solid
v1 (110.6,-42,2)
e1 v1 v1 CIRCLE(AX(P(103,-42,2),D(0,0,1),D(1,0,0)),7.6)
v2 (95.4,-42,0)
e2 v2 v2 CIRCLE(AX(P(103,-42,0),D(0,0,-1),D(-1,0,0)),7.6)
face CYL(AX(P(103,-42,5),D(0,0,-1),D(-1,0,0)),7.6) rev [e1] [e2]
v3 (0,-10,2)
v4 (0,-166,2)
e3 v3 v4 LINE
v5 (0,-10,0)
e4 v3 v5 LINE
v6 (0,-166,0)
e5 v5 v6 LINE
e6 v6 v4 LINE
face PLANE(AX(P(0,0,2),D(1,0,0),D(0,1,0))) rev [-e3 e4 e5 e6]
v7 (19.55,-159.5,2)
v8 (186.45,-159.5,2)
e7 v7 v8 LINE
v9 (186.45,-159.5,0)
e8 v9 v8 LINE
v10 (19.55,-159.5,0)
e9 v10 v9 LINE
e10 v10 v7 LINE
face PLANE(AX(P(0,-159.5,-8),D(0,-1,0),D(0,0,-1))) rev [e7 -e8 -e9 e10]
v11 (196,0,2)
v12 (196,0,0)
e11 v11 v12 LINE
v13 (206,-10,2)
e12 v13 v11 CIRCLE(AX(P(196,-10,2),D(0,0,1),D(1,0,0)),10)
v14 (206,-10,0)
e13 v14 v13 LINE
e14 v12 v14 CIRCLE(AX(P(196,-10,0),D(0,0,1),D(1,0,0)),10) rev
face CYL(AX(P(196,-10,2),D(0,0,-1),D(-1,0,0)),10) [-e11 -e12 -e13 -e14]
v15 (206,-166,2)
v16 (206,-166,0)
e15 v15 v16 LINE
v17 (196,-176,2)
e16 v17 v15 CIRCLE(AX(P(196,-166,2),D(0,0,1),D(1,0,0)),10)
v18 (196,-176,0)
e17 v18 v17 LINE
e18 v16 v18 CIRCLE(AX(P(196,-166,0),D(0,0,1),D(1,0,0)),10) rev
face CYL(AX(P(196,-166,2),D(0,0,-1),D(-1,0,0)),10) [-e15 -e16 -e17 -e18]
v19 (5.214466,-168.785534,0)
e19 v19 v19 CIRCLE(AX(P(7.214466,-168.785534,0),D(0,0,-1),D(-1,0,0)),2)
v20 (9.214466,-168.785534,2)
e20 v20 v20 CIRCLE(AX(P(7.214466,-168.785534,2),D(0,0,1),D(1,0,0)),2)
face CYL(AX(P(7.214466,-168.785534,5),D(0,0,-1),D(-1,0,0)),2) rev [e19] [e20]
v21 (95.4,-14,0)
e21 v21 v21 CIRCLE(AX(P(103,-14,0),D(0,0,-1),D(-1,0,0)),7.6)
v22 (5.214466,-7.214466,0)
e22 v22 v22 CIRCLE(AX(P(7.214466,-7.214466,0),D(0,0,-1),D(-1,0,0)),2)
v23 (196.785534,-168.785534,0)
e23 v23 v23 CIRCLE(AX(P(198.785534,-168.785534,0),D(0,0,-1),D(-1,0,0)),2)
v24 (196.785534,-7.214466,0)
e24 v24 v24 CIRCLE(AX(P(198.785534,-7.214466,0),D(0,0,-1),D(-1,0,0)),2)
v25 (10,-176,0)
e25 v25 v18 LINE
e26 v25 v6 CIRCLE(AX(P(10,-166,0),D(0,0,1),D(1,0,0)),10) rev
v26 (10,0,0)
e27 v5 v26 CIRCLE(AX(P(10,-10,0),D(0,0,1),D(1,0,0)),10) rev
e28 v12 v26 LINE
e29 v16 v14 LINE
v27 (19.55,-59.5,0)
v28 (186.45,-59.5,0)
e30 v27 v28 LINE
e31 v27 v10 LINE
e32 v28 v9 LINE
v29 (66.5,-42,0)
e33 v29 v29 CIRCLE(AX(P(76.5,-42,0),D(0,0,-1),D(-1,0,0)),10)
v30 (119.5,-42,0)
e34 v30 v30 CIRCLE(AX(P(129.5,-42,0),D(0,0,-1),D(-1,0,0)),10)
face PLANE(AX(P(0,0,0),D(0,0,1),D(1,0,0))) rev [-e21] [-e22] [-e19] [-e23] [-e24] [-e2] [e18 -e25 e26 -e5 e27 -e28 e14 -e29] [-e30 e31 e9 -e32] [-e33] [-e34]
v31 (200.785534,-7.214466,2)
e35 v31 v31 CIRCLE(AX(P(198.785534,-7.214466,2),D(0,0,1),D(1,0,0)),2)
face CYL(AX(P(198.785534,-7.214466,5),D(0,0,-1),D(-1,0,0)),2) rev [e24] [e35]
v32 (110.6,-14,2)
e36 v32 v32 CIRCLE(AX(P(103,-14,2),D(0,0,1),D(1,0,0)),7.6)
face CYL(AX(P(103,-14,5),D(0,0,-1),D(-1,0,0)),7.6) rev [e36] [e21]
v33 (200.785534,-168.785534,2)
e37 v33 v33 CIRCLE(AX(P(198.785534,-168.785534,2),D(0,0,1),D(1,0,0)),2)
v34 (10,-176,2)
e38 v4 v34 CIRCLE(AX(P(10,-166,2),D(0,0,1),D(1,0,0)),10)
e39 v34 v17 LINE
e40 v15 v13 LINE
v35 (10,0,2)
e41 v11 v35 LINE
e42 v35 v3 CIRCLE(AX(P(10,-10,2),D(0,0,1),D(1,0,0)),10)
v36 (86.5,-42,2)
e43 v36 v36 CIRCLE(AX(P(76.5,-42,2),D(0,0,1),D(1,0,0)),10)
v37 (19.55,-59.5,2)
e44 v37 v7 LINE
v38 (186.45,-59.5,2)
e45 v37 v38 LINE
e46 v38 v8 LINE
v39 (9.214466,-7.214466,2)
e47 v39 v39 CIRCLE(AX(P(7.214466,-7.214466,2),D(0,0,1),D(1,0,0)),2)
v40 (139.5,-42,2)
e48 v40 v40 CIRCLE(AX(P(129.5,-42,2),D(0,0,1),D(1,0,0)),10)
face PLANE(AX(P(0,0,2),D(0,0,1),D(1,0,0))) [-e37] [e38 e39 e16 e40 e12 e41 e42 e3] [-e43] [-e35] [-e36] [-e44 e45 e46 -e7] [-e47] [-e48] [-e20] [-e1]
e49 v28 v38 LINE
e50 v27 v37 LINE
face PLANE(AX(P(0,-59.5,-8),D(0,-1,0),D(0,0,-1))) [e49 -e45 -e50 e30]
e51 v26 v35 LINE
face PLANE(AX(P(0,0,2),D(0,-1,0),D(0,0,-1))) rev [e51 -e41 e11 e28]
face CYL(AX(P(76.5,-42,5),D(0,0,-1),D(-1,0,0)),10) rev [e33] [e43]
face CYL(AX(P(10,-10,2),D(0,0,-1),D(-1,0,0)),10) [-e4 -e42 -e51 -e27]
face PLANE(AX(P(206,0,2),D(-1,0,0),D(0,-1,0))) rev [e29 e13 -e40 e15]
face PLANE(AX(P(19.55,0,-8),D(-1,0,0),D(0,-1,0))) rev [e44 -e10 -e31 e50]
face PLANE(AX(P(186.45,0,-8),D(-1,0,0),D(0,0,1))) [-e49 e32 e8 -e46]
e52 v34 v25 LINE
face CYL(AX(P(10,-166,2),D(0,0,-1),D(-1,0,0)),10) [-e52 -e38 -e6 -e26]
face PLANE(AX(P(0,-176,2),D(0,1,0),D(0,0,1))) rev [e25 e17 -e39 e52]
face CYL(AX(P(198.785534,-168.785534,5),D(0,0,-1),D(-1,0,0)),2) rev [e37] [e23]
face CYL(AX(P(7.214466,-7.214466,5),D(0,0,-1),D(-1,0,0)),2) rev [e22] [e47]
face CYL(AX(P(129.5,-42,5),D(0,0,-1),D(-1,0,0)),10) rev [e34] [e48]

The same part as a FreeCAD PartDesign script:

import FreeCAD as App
import Part
import Sketcher

V = App.Vector


def edges_at(feature, points):
    """Names of the edges that pass closest to the given points."""
    edges = feature.Shape.Edges
    near = lambda p: min(range(len(edges)), key=lambda i: edges[i].distToShape(Part.Vertex(*p))[0])
    return sorted({f"Edge{near(p) + 1}" for p in points})


def add_polygon(sketch, points):
    """Adds a closed chain of lines whose ends are joined by coincident constraints."""
    first, n = sketch.GeometryCount, len(points)
    for a, b in zip(points, points[1:] + points[:1]):
        sketch.addGeometry(Part.LineSegment(App.Vector(*a, 0), App.Vector(*b, 0)), False)
    for i in range(n):
        sketch.addConstraint(Sketcher.Constraint("Coincident", first + i, 2, first + (i + 1) % n, 1))

doc = App.newDocument("Part")
body = doc.addObject("PartDesign::Body", "Body")

sketch1 = doc.addObject("Sketcher::SketchObject", "Sketch")
body.addObject(sketch1)
sketch1.AttachmentSupport = (doc.XY_Plane, [""])
sketch1.MapMode = "FlatFace"
add_polygon(sketch1, [(0, 0), (0, -176), (206, -176), (206, 0)])
sketch1.addConstraint([
    Sketcher.Constraint("Vertical", 0),
    Sketcher.Constraint("Horizontal", 1),
    Sketcher.Constraint("Vertical", 2),
    Sketcher.Constraint("Horizontal", 3),
    Sketcher.Constraint("Coincident", 3, 2, -1, 1),
    Sketcher.Constraint("DistanceX", 1, 1, 1, 2, 206.0),
    Sketcher.Constraint("DistanceY", 0, 2, 0, 1, 176.0),
])
pad1 = doc.addObject("PartDesign::Pad", "Pad")
body.addObject(pad1)
pad1.Profile = sketch1
pad1.Length = 2
doc.recompute()

fillet = doc.addObject("PartDesign::Fillet", "Fillet")
body.addObject(fillet)
fillet.Base = (pad1, edges_at(pad1, [
    (0, 0, 1),
    (206, 0, 1),
    (206, -176, 1),
    (0, -176, 1),
]))
fillet.Radius = 10

sketch2 = doc.addObject("Sketcher::SketchObject", "Sketch001")
body.addObject(sketch2)
sketch2.AttachmentSupport = (doc.XY_Plane, [""])
sketch2.MapMode = "FlatFace"
sketch2.addGeometry([
    Part.Circle(V(198.8, -7.2, 0), V(0, 0, 1), 2),
    Part.Circle(V(7.2, -7.2, 0), V(0, 0, 1), 2),
    Part.Circle(V(7.2, -168.8, 0), V(0, 0, 1), 2),
    Part.Circle(V(198.8, -168.8, 0), V(0, 0, 1), 2),
], False)
sketch2.addConstraint([
    Sketcher.Constraint("Equal", 0, 1),
    Sketcher.Constraint("Equal", 1, 2),
    Sketcher.Constraint("Equal", 2, 3),
    Sketcher.Constraint("Horizontal", 0, 3, 1, 3),
    Sketcher.Constraint("Horizontal", 2, 3, 3, 3),
    Sketcher.Constraint("Vertical", 1, 3, 2, 3),
    Sketcher.Constraint("Vertical", 0, 3, 3, 3),
    Sketcher.Constraint("Diameter", 0, 4.0),
    Sketcher.Constraint("DistanceX", -1, 1, 0, 3, 198.785534),
    Sketcher.Constraint("DistanceY", 0, 3, -1, 1, 7.214466),
    Sketcher.Constraint("DistanceX", -1, 1, 1, 3, 7.214466),
    Sketcher.Constraint("DistanceY", 2, 3, -1, 1, 168.785534),
])
pocket1 = doc.addObject("PartDesign::Pocket", "Pocket")
body.addObject(pocket1)
pocket1.Profile = sketch2
pocket1.Length = 5
pocket1.Reversed = True

sketch3 = doc.addObject("Sketcher::SketchObject", "Sketch002")
body.addObject(sketch3)
sketch3.AttachmentSupport = (doc.XY_Plane, [""])
sketch3.MapMode = "FlatFace"
sketch3.addGeometry([
    Part.Circle(V(103, -14, 0), V(0, 0, 1), 8),
    Part.Circle(V(130, -42, 0), V(0, 0, 1), 10),
    Part.Circle(V(103, -42, 0), V(0, 0, 1), 8),
    Part.Circle(V(76, -42, 0), V(0, 0, 1), 10),
], False)
sketch3.addConstraint([
    Sketcher.Constraint("Equal", 0, 2),
    Sketcher.Constraint("Equal", 1, 3),
    Sketcher.Constraint("Horizontal", 1, 3, 2, 3),
    Sketcher.Constraint("Horizontal", 2, 3, 3, 3),
    Sketcher.Constraint("Vertical", 0, 3, 2, 3),
    Sketcher.Constraint("Diameter", 1, 20.0),
    Sketcher.Constraint("Diameter", 0, 15.2),
    Sketcher.Constraint("DistanceX", -1, 1, 0, 3, 103.0),
    Sketcher.Constraint("DistanceY", 0, 3, -1, 1, 14.0),
    Sketcher.Constraint("DistanceY", 1, 3, -1, 1, 42.0),
    Sketcher.Constraint("DistanceX", 3, 3, 1, 3, 53.0),
    Sketcher.Constraint("DistanceX", -1, 1, 1, 3, 129.5),
])
pocket2 = doc.addObject("PartDesign::Pocket", "Pocket001")
body.addObject(pocket2)
pocket2.Profile = sketch3
pocket2.Length = 5
pocket2.Reversed = True

sketch4 = doc.addObject("Sketcher::SketchObject", "Sketch003")
body.addObject(sketch4)
sketch4.AttachmentSupport = (doc.XY_Plane, [""])
sketch4.MapMode = "FlatFace"
sketch4.AttachmentOffset = App.Placement(V(0, 0, 2), App.Rotation())
add_polygon(sketch4, [(20, -60), (20, -160), (186, -160), (186, -60)])
sketch4.addConstraint([
    Sketcher.Constraint("Vertical", 0),
    Sketcher.Constraint("Horizontal", 1),
    Sketcher.Constraint("Vertical", 2),
    Sketcher.Constraint("Horizontal", 3),
    Sketcher.Constraint("DistanceY", 0, 2, 0, 1, 100.0),
    Sketcher.Constraint("DistanceX", 1, 1, 1, 2, 166.9),
    Sketcher.Constraint("DistanceY", 0, 2, -1, 1, 159.5),
    Sketcher.Constraint("DistanceX", -1, 1, 0, 2, 19.55),
])
pocket3 = doc.addObject("PartDesign::Pocket", "Pocket002")
body.addObject(pocket3)
pocket3.Profile = sketch4
pocket3.Length = 10

doc.recompute()
